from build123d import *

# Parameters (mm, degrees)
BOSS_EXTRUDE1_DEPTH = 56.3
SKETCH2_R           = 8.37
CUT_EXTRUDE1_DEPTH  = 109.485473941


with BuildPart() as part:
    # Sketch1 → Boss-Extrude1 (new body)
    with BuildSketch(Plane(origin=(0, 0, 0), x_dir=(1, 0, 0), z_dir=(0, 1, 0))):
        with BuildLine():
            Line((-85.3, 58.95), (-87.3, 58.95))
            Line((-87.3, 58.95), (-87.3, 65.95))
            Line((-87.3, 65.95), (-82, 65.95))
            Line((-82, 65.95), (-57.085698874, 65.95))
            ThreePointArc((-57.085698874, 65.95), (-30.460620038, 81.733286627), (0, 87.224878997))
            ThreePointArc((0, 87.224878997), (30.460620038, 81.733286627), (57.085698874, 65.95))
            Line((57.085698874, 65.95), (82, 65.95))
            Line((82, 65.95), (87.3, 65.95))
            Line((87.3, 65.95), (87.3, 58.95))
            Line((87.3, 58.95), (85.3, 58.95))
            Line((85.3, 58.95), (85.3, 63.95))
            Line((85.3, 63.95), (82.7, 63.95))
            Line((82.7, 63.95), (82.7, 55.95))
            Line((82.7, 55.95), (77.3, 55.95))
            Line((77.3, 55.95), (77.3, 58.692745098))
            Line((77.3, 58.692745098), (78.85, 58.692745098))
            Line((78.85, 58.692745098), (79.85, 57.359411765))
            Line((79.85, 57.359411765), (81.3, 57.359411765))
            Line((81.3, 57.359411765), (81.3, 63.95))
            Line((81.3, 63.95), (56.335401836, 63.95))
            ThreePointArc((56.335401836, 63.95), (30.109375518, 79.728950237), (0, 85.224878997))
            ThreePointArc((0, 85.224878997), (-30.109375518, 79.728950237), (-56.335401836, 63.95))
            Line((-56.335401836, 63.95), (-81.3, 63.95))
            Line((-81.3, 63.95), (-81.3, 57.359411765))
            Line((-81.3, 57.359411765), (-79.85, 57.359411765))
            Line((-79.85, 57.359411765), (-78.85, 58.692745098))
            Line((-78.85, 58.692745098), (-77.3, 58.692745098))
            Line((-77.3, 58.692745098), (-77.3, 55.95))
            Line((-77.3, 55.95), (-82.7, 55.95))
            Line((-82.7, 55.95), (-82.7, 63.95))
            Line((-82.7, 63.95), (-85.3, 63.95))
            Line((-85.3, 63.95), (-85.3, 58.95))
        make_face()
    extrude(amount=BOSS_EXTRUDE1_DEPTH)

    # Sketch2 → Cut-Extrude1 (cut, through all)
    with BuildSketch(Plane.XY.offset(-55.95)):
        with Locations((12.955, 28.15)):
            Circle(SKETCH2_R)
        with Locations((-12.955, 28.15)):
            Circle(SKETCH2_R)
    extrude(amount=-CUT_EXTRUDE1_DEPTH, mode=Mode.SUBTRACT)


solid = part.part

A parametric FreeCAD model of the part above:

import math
import FreeCAD as App
import Part
import Sketcher
Q = App.Units.Quantity

doc = App.newDocument("Part")
body = doc.addObject("PartDesign::Body", "Body")

# Sketch on XZ plane
sketch1 = body.newObject("Sketcher::SketchObject", "Sketch")
sketch1.AttachmentSupport = (doc.getObject("XZ_Plane"), [""])
sketch1.MapMode = "FlatFace"
sketch1.addGeometry([
    Part.LineSegment(App.Vector(-87.3, -59, 0), App.Vector(-85.3, -59, 0)),  # 0
    Part.LineSegment(App.Vector(-85.3, -59, 0), App.Vector(-85.3, -64, 0)),  # 1
    Part.LineSegment(App.Vector(-85.3, -64, 0), App.Vector(-82.7, -64, 0)),  # 2
    Part.LineSegment(App.Vector(-82.7, -64, 0), App.Vector(-82.7, -56, 0)),  # 3
    Part.LineSegment(App.Vector(-82.7, -56, 0), App.Vector(-77.3, -56, 0)),  # 4
    Part.LineSegment(App.Vector(-77.3, -56, 0), App.Vector(-77.3, -58.7, 0)),  # 5
    Part.LineSegment(App.Vector(-77.3, -58.7, 0), App.Vector(-78.8, -58.7, 0)),  # 6
    Part.LineSegment(App.Vector(-78.8, -58.7, 0), App.Vector(-79.8, -57.4, 0)),  # 7
    Part.LineSegment(App.Vector(-79.8, -57.4, 0), App.Vector(-81.3, -57.4, 0)),  # 8
    Part.LineSegment(App.Vector(-81.3, -57.4, 0), App.Vector(-81.3, -64, 0)),  # 9
    Part.LineSegment(App.Vector(-81.3, -64, 0), App.Vector(-56.3, -64, 0)),  # 10
    Part.ArcOfCircle(Part.Circle(App.Vector(0, 0, 0), App.Vector(0, 0, 1), 85.2), math.radians(-131), math.radians(-90)),  # 11
    Part.ArcOfCircle(Part.Circle(App.Vector(0, 0, 0), App.Vector(0, 0, 1), 85.2), math.radians(-90), math.radians(-49)),  # 12
    Part.LineSegment(App.Vector(56.3, -64, 0), App.Vector(81.3, -64, 0)),  # 13
    Part.LineSegment(App.Vector(81.3, -64, 0), App.Vector(81.3, -57.4, 0)),  # 14
    Part.LineSegment(App.Vector(81.3, -57.4, 0), App.Vector(79.8, -57.4, 0)),  # 15
    Part.LineSegment(App.Vector(79.8, -57.4, 0), App.Vector(78.8, -58.7, 0)),  # 16
    Part.LineSegment(App.Vector(78.8, -58.7, 0), App.Vector(77.3, -58.7, 0)),  # 17
    Part.LineSegment(App.Vector(77.3, -58.7, 0), App.Vector(77.3, -56, 0)),  # 18
    Part.LineSegment(App.Vector(77.3, -56, 0), App.Vector(82.7, -56, 0)),  # 19
    Part.LineSegment(App.Vector(82.7, -56, 0), App.Vector(82.7, -64, 0)),  # 20
    Part.LineSegment(App.Vector(82.7, -64, 0), App.Vector(85.3, -64, 0)),  # 21
    Part.LineSegment(App.Vector(85.3, -64, 0), App.Vector(85.3, -59, 0)),  # 22
    Part.LineSegment(App.Vector(85.3, -59, 0), App.Vector(87.3, -59, 0)),  # 23
    Part.LineSegment(App.Vector(87.3, -59, 0), App.Vector(87.3, -66, 0)),  # 24
    Part.LineSegment(App.Vector(87.3, -66, 0), App.Vector(57.1, -66, 0)),  # 25
    Part.ArcOfCircle(Part.Circle(App.Vector(0, 0, 0), App.Vector(0, 0, 1), 87.2), math.radians(-90), math.radians(-49)),  # 26
    Part.ArcOfCircle(Part.Circle(App.Vector(0, 0, 0), App.Vector(0, 0, 1), 87.2), math.radians(-131), math.radians(-90)),  # 27
    Part.LineSegment(App.Vector(-57.1, -66, 0), App.Vector(-87.3, -66, 0)),  # 28
    Part.LineSegment(App.Vector(-87.3, -66, 0), App.Vector(-87.3, -59, 0)),  # 29
], False)
sketch1.addConstraint([
    Sketcher.Constraint("Coincident", 0, 2, 1, 1),
    Sketcher.Constraint("Coincident", 1, 2, 2, 1),
    Sketcher.Constraint("Coincident", 2, 2, 3, 1),
    Sketcher.Constraint("Coincident", 3, 2, 4, 1),
    Sketcher.Constraint("Coincident", 4, 2, 5, 1),
    Sketcher.Constraint("Coincident", 5, 2, 6, 1),
    Sketcher.Constraint("Coincident", 6, 2, 7, 1),
    Sketcher.Constraint("Coincident", 7, 2, 8, 1),
    Sketcher.Constraint("Coincident", 8, 2, 9, 1),
    Sketcher.Constraint("Coincident", 9, 2, 10, 1),
    Sketcher.Constraint("Coincident", 10, 2, 11, 1),
    Sketcher.Constraint("Tangent", 11, 2, 12, 1),
    Sketcher.Constraint("Coincident", 12, 2, 13, 1),
    Sketcher.Constraint("Coincident", 13, 2, 14, 1),
    Sketcher.Constraint("Coincident", 14, 2, 15, 1),
    Sketcher.Constraint("Coincident", 15, 2, 16, 1),
    Sketcher.Constraint("Coincident", 16, 2, 17, 1),
    Sketcher.Constraint("Coincident", 17, 2, 18, 1),
    Sketcher.Constraint("Coincident", 18, 2, 19, 1),
    Sketcher.Constraint("Coincident", 19, 2, 20, 1),
    Sketcher.Constraint("Coincident", 20, 2, 21, 1),
    Sketcher.Constraint("Coincident", 21, 2, 22, 1),
    Sketcher.Constraint("Coincident", 22, 2, 23, 1),
    Sketcher.Constraint("Coincident", 23, 2, 24, 1),
    Sketcher.Constraint("Coincident", 24, 2, 25, 1),
    Sketcher.Constraint("Coincident", 25, 2, 26, 2),
    Sketcher.Constraint("Tangent", 26, 1, 27, 2),
    Sketcher.Constraint("Coincident", 27, 1, 28, 1),
    Sketcher.Constraint("Coincident", 28, 2, 29, 1),
    Sketcher.Constraint("Coincident", 29, 2, 0, 1),
    Sketcher.Constraint("Horizontal", 0),
    Sketcher.Constraint("Vertical", 1),
    Sketcher.Constraint("Horizontal", 2),
    Sketcher.Constraint("Vertical", 3),
    Sketcher.Constraint("Horizontal", 4),
    Sketcher.Constraint("Vertical", 5),
    Sketcher.Constraint("Horizontal", 6),
    Sketcher.Constraint("Horizontal", 8),
    Sketcher.Constraint("Vertical", 9),
    Sketcher.Constraint("Horizontal", 10),
    Sketcher.Constraint("Horizontal", 13),
    Sketcher.Constraint("Vertical", 14),
    Sketcher.Constraint("Horizontal", 15),
    Sketcher.Constraint("Horizontal", 17),
    Sketcher.Constraint("Vertical", 18),
    Sketcher.Constraint("Horizontal", 19),
    Sketcher.Constraint("Vertical", 20),
    Sketcher.Constraint("Horizontal", 21),
    Sketcher.Constraint("Vertical", 22),
    Sketcher.Constraint("Horizontal", 23),
    Sketcher.Constraint("Vertical", 24),
    Sketcher.Constraint("Horizontal", 25),
    Sketcher.Constraint("Horizontal", 28),
    Sketcher.Constraint("Vertical", 29),
    Sketcher.Constraint("Coincident", 11, 3, -1, 1),
    Sketcher.Constraint("Coincident", 26, 3, -1, 1),
    Sketcher.Constraint("Equal", 11, 12),
    Sketcher.Constraint("Equal", 26, 27),
    Sketcher.Constraint("Symmetric", 9, 2, 13, 2, -2),
    Sketcher.Constraint("Symmetric", 7, 2, 15, 2, -2),
    Sketcher.Constraint("Symmetric", 6, 2, 16, 2, -2),
    Sketcher.Constraint("Symmetric", 4, 2, 18, 2, -2),
    Sketcher.Constraint("Symmetric", 2, 2, 20, 2, -2),
    Sketcher.Constraint("Symmetric", 0, 2, 22, 2, -2),
    Sketcher.Constraint("Symmetric", 24, 2, 28, 2, -2),
    Sketcher.Constraint("PointOnObject", 11, 2, -2),
    Sketcher.Constraint("PointOnObject", 26, 1, -2),
    Sketcher.Constraint("Horizontal", 2, 2, 9, 2),
    Sketcher.Constraint("DistanceX", 0, 1, 0, 2, Q("2 mm")),
    Sketcher.Constraint("DistanceY", 1, 2, 1, 1, Q("5 mm")),
    Sketcher.Constraint("DistanceY", 3, 1, 3, 2, Q("8 mm")),
    Sketcher.Constraint("DistanceY", 24, 2, 24, 1, Q("7 mm")),
    Sketcher.Constraint("DistanceX", 2, 1, 2, 2, Q("2.6 mm")),
    Sketcher.Constraint("DistanceX", 4, 1, 4, 2, Q("5.4 mm")),
    Sketcher.Constraint("DistanceX", 7, 2, 6, 2, Q("1 mm")),
    Sketcher.Constraint("DistanceX", 8, 2, 5, 2, Q("4 mm")),
    Sketcher.Constraint("DistanceY", 26, 1, 11, 2, Q("2 mm")),
    Sketcher.Constraint("DistanceX", 6, 2, 6, 1, Q("1.55 mm")),
    Sketcher.Constraint("DistanceX", 0, 2, -1, 1, Q("85.3 mm")),
    Sketcher.Constraint("DistanceY", 0, 2, -1, 1, Q("58.95 mm")),
    Sketcher.Constraint("Radius", 11, Q("85.224879 mm")),
    Sketcher.Constraint("DistanceY", 9, 2, 9, 1, Q("6.590588 mm")),
    Sketcher.Constraint("DistanceY", 5, 2, 5, 1, Q("2.742745 mm")),
])
pad1 = body.newObject("PartDesign::Pad", "Pad")
pad1.Profile = sketch1
pad1.Length = 56.3
pad1.Reversed = True

# Sketch on XY plane
sketch2 = body.newObject("Sketcher::SketchObject", "Sketch001")
sketch2.AttachmentSupport = (doc.getObject("XY_Plane"), [""])
sketch2.MapMode = "FlatFace"
sketch2.AttachmentOffset = App.Placement(App.Vector(0, 0, -55.95), App.Rotation())
sketch2.addGeometry([
    Part.Circle(App.Vector(13, 28, 0), App.Vector(0, 0, 1), 8),
    Part.Circle(App.Vector(-13, 28, 0), App.Vector(0, 0, 1), 8),
], False)
sketch2.addConstraint([
    Sketcher.Constraint("Equal", 0, 1),
    Sketcher.Constraint("Symmetric", 0, 3, 1, 3, -2),
    Sketcher.Constraint("Diameter", 0, Q("16.74 mm")),
    Sketcher.Constraint("DistanceY", -1, 1, 0, 3, Q("28.15 mm")),
    Sketcher.Constraint("DistanceX", 1, 3, 0, 3, Q("25.91 mm")),
])
pocket1 = body.newObject("PartDesign::Pocket", "Pocket")
pocket1.Profile = sketch2
pocket1.Type = "ThroughAll"

doc.recompute()
